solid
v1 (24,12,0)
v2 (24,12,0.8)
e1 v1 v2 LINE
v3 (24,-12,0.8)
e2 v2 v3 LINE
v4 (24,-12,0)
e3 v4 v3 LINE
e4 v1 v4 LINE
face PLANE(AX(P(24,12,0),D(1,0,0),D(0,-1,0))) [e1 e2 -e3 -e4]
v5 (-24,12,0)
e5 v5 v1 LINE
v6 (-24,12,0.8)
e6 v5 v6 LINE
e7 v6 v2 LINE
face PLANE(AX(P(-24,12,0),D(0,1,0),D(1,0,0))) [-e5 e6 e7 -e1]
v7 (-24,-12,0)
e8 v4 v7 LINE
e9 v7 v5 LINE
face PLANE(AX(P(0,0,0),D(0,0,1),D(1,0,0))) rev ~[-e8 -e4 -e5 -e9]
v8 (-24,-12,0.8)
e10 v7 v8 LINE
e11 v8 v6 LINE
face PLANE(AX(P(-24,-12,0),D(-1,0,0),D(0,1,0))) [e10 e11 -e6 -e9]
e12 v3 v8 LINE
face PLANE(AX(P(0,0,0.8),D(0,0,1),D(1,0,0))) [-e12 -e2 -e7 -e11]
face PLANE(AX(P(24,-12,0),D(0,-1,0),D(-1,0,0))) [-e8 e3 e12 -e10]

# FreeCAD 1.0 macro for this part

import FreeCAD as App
import Part
import Sketcher
Q = App.Units.Quantity

doc = App.newDocument("Part")
params = doc.addObject("Spreadsheet::Sheet", "Params")
for row, (alias, value) in enumerate([
    ("sketch1_width", "48 mm"),
    ("sketch1_height", "24 mm"),
    ("pad1_length", "0.8 mm"),
], start=1):
    params.set(f"A{row}", alias)
    params.set(f"B{row}", "=" + value)
    params.setAlias(f"B{row}", alias)

body = doc.addObject("PartDesign::Body", "Body")

# Sketch on XY plane
sketch1 = body.newObject("Sketcher::SketchObject", "Sketch")
sketch1.AttachmentSupport = (doc.getObject("XY_Plane"), [""])
sketch1.MapMode = "FlatFace"
sketch1.addGeometry(Part.LineSegment(App.Vector(24, 12, 0), App.Vector(-24, 12, 0)), False)
sketch1.addGeometry(Part.LineSegment(App.Vector(-24, 12, 0), App.Vector(-24, -12, 0)), False)
sketch1.addGeometry(Part.LineSegment(App.Vector(-24, -12, 0), App.Vector(24, -12, 0)), False)
sketch1.addGeometry(Part.LineSegment(App.Vector(24, -12, 0), App.Vector(24, 12, 0)), False)
sketch1.addConstraint(Sketcher.Constraint("Coincident", 0, 2, 1, 1))
sketch1.addConstraint(Sketcher.Constraint("Coincident", 1, 2, 2, 1))
sketch1.addConstraint(Sketcher.Constraint("Coincident", 2, 2, 3, 1))
sketch1.addConstraint(Sketcher.Constraint("Coincident", 3, 2, 0, 1))
sketch1.addConstraint(Sketcher.Constraint("Horizontal", 0))
sketch1.addConstraint(Sketcher.Constraint("Vertical", 1))
sketch1.addConstraint(Sketcher.Constraint("Horizontal", 2))
sketch1.addConstraint(Sketcher.Constraint("Vertical", 3))
sketch1.addConstraint(Sketcher.Constraint("Symmetric", 0, 2, 2, 2, -1, 1))
sketch1.addConstraint(Sketcher.Constraint("DistanceX", 0, 2, 0, 1, Q("48 mm")))
sketch1.addConstraint(Sketcher.Constraint("DistanceY", 1, 2, 1, 1, Q("24 mm")))
sketch1.setExpression("Constraints[9]", "Params.sketch1_width")
sketch1.setExpression("Constraints[10]", "Params.sketch1_height")
pad1 = body.newObject("PartDesign::Pad", "Pad")
pad1.Profile = sketch1
pad1.setExpression("Length", "Params.pad1_length")

doc.recompute()
